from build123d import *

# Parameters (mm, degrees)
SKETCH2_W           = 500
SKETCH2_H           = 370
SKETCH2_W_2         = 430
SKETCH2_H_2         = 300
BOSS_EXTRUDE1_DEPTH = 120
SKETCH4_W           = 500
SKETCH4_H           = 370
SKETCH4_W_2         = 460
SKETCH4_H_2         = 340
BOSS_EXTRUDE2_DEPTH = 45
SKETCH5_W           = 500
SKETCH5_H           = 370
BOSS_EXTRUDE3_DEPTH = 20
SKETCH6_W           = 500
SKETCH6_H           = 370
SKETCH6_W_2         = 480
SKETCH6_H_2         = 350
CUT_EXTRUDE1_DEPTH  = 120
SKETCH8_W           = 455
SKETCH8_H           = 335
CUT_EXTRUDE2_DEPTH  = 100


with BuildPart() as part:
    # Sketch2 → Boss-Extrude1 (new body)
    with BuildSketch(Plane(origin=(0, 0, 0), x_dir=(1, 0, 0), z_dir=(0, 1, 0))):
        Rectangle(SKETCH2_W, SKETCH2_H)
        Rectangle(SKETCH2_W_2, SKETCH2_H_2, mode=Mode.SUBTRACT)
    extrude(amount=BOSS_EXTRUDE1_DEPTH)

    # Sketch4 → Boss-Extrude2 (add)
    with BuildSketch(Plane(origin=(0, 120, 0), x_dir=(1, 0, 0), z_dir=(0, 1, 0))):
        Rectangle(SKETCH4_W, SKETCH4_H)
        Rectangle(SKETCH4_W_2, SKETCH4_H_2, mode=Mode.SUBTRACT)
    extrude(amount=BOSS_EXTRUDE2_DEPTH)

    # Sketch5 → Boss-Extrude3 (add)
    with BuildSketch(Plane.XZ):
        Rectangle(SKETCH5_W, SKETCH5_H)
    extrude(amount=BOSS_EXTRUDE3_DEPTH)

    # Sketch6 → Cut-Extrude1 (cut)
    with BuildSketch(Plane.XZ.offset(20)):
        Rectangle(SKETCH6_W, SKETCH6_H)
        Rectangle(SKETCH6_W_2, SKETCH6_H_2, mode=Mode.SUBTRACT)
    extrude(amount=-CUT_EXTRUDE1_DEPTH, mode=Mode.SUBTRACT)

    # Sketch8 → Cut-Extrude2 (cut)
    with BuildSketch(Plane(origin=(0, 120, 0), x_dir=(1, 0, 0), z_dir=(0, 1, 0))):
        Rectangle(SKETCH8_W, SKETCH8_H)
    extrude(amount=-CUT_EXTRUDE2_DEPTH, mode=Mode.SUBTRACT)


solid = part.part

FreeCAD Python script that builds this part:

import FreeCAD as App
import Part
import Sketcher

V = App.Vector

doc = App.newDocument("Part")
body = doc.addObject("PartDesign::Body", "Body")

# Sketch on XZ plane
sketch1 = body.newObject("Sketcher::SketchObject", "Sketch")
sketch1.AttachmentSupport = (doc.getObject("XZ_Plane"), [""])
sketch1.MapMode = "FlatFace"
sketch1.addGeometry(Part.LineSegment(V(-250, -185, 0), V(-250, 185, 0)), False)
sketch1.addGeometry(Part.LineSegment(V(-250, 185, 0), V(250, 185, 0)), False)
sketch1.addGeometry(Part.LineSegment(V(250, 185, 0), V(250, -185, 0)), False)
sketch1.addGeometry(Part.LineSegment(V(250, -185, 0), V(-250, -185, 0)), False)
sketch1.addGeometry(Part.LineSegment(V(215, 150, 0), V(-215, 150, 0)), False)
sketch1.addGeometry(Part.LineSegment(V(-215, 150, 0), V(-215, -150, 0)), False)
sketch1.addGeometry(Part.LineSegment(V(-215, -150, 0), V(215, -150, 0)), False)
sketch1.addGeometry(Part.LineSegment(V(215, -150, 0), V(215, 150, 0)), False)
sketch1.addConstraint(Sketcher.Constraint("Coincident", 0, 2, 1, 1))
sketch1.addConstraint(Sketcher.Constraint("Coincident", 1, 2, 2, 1))
sketch1.addConstraint(Sketcher.Constraint("Coincident", 2, 2, 3, 1))
sketch1.addConstraint(Sketcher.Constraint("Coincident", 3, 2, 0, 1))
sketch1.addConstraint(Sketcher.Constraint("Coincident", 4, 2, 5, 1))
sketch1.addConstraint(Sketcher.Constraint("Coincident", 5, 2, 6, 1))
sketch1.addConstraint(Sketcher.Constraint("Coincident", 6, 2, 7, 1))
sketch1.addConstraint(Sketcher.Constraint("Coincident", 7, 2, 4, 1))
sketch1.addConstraint(Sketcher.Constraint("Vertical", 0))
sketch1.addConstraint(Sketcher.Constraint("Horizontal", 1))
sketch1.addConstraint(Sketcher.Constraint("Vertical", 2))
sketch1.addConstraint(Sketcher.Constraint("Horizontal", 3))
sketch1.addConstraint(Sketcher.Constraint("Horizontal", 4))
sketch1.addConstraint(Sketcher.Constraint("Vertical", 5))
sketch1.addConstraint(Sketcher.Constraint("Horizontal", 6))
sketch1.addConstraint(Sketcher.Constraint("Vertical", 7))
sketch1.addConstraint(Sketcher.Constraint("Symmetric", 0, 2, 2, 2, -1, 1))
sketch1.addConstraint(Sketcher.Constraint("Symmetric", 4, 2, 6, 2, -1, 1))
sketch1.addConstraint(Sketcher.Constraint("DistanceX", 1, 1, 1, 2, 500.0))
sketch1.addConstraint(Sketcher.Constraint("DistanceX", 4, 2, 4, 1, 430.0))
sketch1.addConstraint(Sketcher.Constraint("DistanceY", 0, 1, 0, 2, 370.0))
sketch1.addConstraint(Sketcher.Constraint("DistanceY", 5, 2, 5, 1, 300.0))
pad1 = body.newObject("PartDesign::Pad", "Pad")
pad1.Profile = sketch1
pad1.Length = 120
pad1.Reversed = True

# Sketch on XZ plane
sketch2 = body.newObject("Sketcher::SketchObject", "Sketch001")
sketch2.AttachmentSupport = (doc.getObject("XZ_Plane"), [""])
sketch2.MapMode = "FlatFace"
sketch2.AttachmentOffset = App.Placement(V(0, 0, -120), App.Rotation())
sketch2.addGeometry(Part.LineSegment(V(-250, -185, 0), V(-250, 185, 0)), False)
sketch2.addGeometry(Part.LineSegment(V(-250, 185, 0), V(250, 185, 0)), False)
sketch2.addGeometry(Part.LineSegment(V(250, 185, 0), V(250, -185, 0)), False)
sketch2.addGeometry(Part.LineSegment(V(250, -185, 0), V(-250, -185, 0)), False)
sketch2.addGeometry(Part.LineSegment(V(230, 170, 0), V(-230, 170, 0)), False)
sketch2.addGeometry(Part.LineSegment(V(-230, 170, 0), V(-230, -170, 0)), False)
sketch2.addGeometry(Part.LineSegment(V(-230, -170, 0), V(230, -170, 0)), False)
sketch2.addGeometry(Part.LineSegment(V(230, -170, 0), V(230, 170, 0)), False)
sketch2.addConstraint(Sketcher.Constraint("Coincident", 0, 2, 1, 1))
sketch2.addConstraint(Sketcher.Constraint("Coincident", 1, 2, 2, 1))
sketch2.addConstraint(Sketcher.Constraint("Coincident", 2, 2, 3, 1))
sketch2.addConstraint(Sketcher.Constraint("Coincident", 3, 2, 0, 1))
sketch2.addConstraint(Sketcher.Constraint("Coincident", 4, 2, 5, 1))
sketch2.addConstraint(Sketcher.Constraint("Coincident", 5, 2, 6, 1))
sketch2.addConstraint(Sketcher.Constraint("Coincident", 6, 2, 7, 1))
sketch2.addConstraint(Sketcher.Constraint("Coincident", 7, 2, 4, 1))
sketch2.addConstraint(Sketcher.Constraint("Vertical", 0))
sketch2.addConstraint(Sketcher.Constraint("Horizontal", 1))
sketch2.addConstraint(Sketcher.Constraint("Vertical", 2))
sketch2.addConstraint(Sketcher.Constraint("Horizontal", 3))
sketch2.addConstraint(Sketcher.Constraint("Horizontal", 4))
sketch2.addConstraint(Sketcher.Constraint("Vertical", 5))
sketch2.addConstraint(Sketcher.Constraint("Horizontal", 6))
sketch2.addConstraint(Sketcher.Constraint("Vertical", 7))
sketch2.addConstraint(Sketcher.Constraint("Symmetric", 0, 2, 2, 2, -1, 1))
sketch2.addConstraint(Sketcher.Constraint("Symmetric", 4, 2, 6, 2, -1, 1))
sketch2.addConstraint(Sketcher.Constraint("DistanceX", 1, 1, 1, 2, 500.0))
sketch2.addConstraint(Sketcher.Constraint("DistanceX", 4, 2, 4, 1, 460.0))
sketch2.addConstraint(Sketcher.Constraint("DistanceY", 0, 1, 0, 2, 370.0))
sketch2.addConstraint(Sketcher.Constraint("DistanceY", 5, 2, 5, 1, 340.0))
pad2 = body.newObject("PartDesign::Pad", "Pad001")
pad2.Profile = sketch2
pad2.Length = 45
pad2.Reversed = True

# Sketch on XZ plane
sketch3 = body.newObject("Sketcher::SketchObject", "Sketch002")
sketch3.AttachmentSupport = (doc.getObject("XZ_Plane"), [""])
sketch3.MapMode = "FlatFace"
sketch3.addGeometry(Part.LineSegment(V(-250, 185, 0), V(-250, -185, 0)), False)
sketch3.addGeometry(Part.LineSegment(V(-250, -185, 0), V(250, -185, 0)), False)
sketch3.addGeometry(Part.LineSegment(V(250, -185, 0), V(250, 185, 0)), False)
sketch3.addGeometry(Part.LineSegment(V(250, 185, 0), V(-250, 185, 0)), False)
sketch3.addConstraint(Sketcher.Constraint("Coincident", 0, 2, 1, 1))
sketch3.addConstraint(Sketcher.Constraint("Coincident", 1, 2, 2, 1))
sketch3.addConstraint(Sketcher.Constraint("Coincident", 2, 2, 3, 1))
sketch3.addConstraint(Sketcher.Constraint("Coincident", 3, 2, 0, 1))
sketch3.addConstraint(Sketcher.Constraint("Vertical", 0))
sketch3.addConstraint(Sketcher.Constraint("Horizontal", 1))
sketch3.addConstraint(Sketcher.Constraint("Vertical", 2))
sketch3.addConstraint(Sketcher.Constraint("Horizontal", 3))
sketch3.addConstraint(Sketcher.Constraint("Symmetric", 0, 2, 2, 2, -1, 1))
sketch3.addConstraint(Sketcher.Constraint("DistanceX", 1, 1, 1, 2, 500.0))
sketch3.addConstraint(Sketcher.Constraint("DistanceY", 0, 2, 0, 1, 370.0))
pad3 = body.newObject("PartDesign::Pad", "Pad002")
pad3.Profile = sketch3
pad3.Length = 20

# Sketch on XZ plane
sketch4 = body.newObject("Sketcher::SketchObject", "Sketch003")
sketch4.AttachmentSupport = (doc.getObject("XZ_Plane"), [""])
sketch4.MapMode = "FlatFace"
sketch4.AttachmentOffset = App.Placement(V(0, 0, 20), App.Rotation())
sketch4.addGeometry(Part.LineSegment(V(-250, 185, 0), V(-250, -185, 0)), False)
sketch4.addGeometry(Part.LineSegment(V(-250, -185, 0), V(250, -185, 0)), False)
sketch4.addGeometry(Part.LineSegment(V(250, -185, 0), V(250, 185, 0)), False)
sketch4.addGeometry(Part.LineSegment(V(250, 185, 0), V(-250, 185, 0)), False)
sketch4.addGeometry(Part.LineSegment(V(240, -175, 0), V(-240, -175, 0)), False)
sketch4.addGeometry(Part.LineSegment(V(-240, -175, 0), V(-240, 175, 0)), False)
sketch4.addGeometry(Part.LineSegment(V(-240, 175, 0), V(240, 175, 0)), False)
sketch4.addGeometry(Part.LineSegment(V(240, 175, 0), V(240, -175, 0)), False)
sketch4.addConstraint(Sketcher.Constraint("Coincident", 0, 2, 1, 1))
sketch4.addConstraint(Sketcher.Constraint("Coincident", 1, 2, 2, 1))
sketch4.addConstraint(Sketcher.Constraint("Coincident", 2, 2, 3, 1))
sketch4.addConstraint(Sketcher.Constraint("Coincident", 3, 2, 0, 1))
sketch4.addConstraint(Sketcher.Constraint("Coincident", 4, 2, 5, 1))
sketch4.addConstraint(Sketcher.Constraint("Coincident", 5, 2, 6, 1))
sketch4.addConstraint(Sketcher.Constraint("Coincident", 6, 2, 7, 1))
sketch4.addConstraint(Sketcher.Constraint("Coincident", 7, 2, 4, 1))
sketch4.addConstraint(Sketcher.Constraint("Vertical", 0))
sketch4.addConstraint(Sketcher.Constraint("Horizontal", 1))
sketch4.addConstraint(Sketcher.Constraint("Vertical", 2))
sketch4.addConstraint(Sketcher.Constraint("Horizontal", 3))
sketch4.addConstraint(Sketcher.Constraint("Horizontal", 4))
sketch4.addConstraint(Sketcher.Constraint("Vertical", 5))
sketch4.addConstraint(Sketcher.Constraint("Horizontal", 6))
sketch4.addConstraint(Sketcher.Constraint("Vertical", 7))
sketch4.addConstraint(Sketcher.Constraint("Symmetric", 0, 2, 2, 2, -1, 1))
sketch4.addConstraint(Sketcher.Constraint("Symmetric", 4, 2, 6, 2, -1, 1))
sketch4.addConstraint(Sketcher.Constraint("DistanceX", 1, 1, 1, 2, 500.0))
sketch4.addConstraint(Sketcher.Constraint("DistanceX", 4, 2, 4, 1, 480.0))
sketch4.addConstraint(Sketcher.Constraint("DistanceY", 0, 2, 0, 1, 370.0))
sketch4.addConstraint(Sketcher.Constraint("DistanceY", 5, 1, 5, 2, 350.0))
pocket1 = body.newObject("PartDesign::Pocket", "Pocket")
pocket1.Profile = sketch4
pocket1.Length = 120

# Sketch on XZ plane
sketch5 = body.newObject("Sketcher::SketchObject", "Sketch004")
sketch5.AttachmentSupport = (doc.getObject("XZ_Plane"), [""])
sketch5.MapMode = "FlatFace"
sketch5.AttachmentOffset = App.Placement(V(0, 0, -120), App.Rotation())
sketch5.addGeometry(Part.LineSegment(V(-227.5, -167.5, 0), V(-227.5, 167.5, 0)), False)
sketch5.addGeometry(Part.LineSegment(V(-227.5, 167.5, 0), V(227.5, 167.5, 0)), False)
sketch5.addGeometry(Part.LineSegment(V(227.5, 167.5, 0), V(227.5, -167.5, 0)), False)
sketch5.addGeometry(Part.LineSegment(V(227.5, -167.5, 0), V(-227.5, -167.5, 0)), False)
sketch5.addConstraint(Sketcher.Constraint("Coincident", 0, 2, 1, 1))
sketch5.addConstraint(Sketcher.Constraint("Coincident", 1, 2, 2, 1))
sketch5.addConstraint(Sketcher.Constraint("Coincident", 2, 2, 3, 1))
sketch5.addConstraint(Sketcher.Constraint("Coincident", 3, 2, 0, 1))
sketch5.addConstraint(Sketcher.Constraint("Vertical", 0))
sketch5.addConstraint(Sketcher.Constraint("Horizontal", 1))
sketch5.addConstraint(Sketcher.Constraint("Vertical", 2))
sketch5.addConstraint(Sketcher.Constraint("Horizontal", 3))
sketch5.addConstraint(Sketcher.Constraint("Symmetric", 0, 2, 2, 2, -1, 1))
sketch5.addConstraint(Sketcher.Constraint("DistanceX", 1, 1, 1, 2, 455.0))
sketch5.addConstraint(Sketcher.Constraint("DistanceY", 0, 1, 0, 2, 335.0))
pocket2 = body.newObject("PartDesign::Pocket", "Pocket001")
pocket2.Profile = sketch5
pocket2.Length = 100
pocket2.Reversed = True

doc.recompute()
